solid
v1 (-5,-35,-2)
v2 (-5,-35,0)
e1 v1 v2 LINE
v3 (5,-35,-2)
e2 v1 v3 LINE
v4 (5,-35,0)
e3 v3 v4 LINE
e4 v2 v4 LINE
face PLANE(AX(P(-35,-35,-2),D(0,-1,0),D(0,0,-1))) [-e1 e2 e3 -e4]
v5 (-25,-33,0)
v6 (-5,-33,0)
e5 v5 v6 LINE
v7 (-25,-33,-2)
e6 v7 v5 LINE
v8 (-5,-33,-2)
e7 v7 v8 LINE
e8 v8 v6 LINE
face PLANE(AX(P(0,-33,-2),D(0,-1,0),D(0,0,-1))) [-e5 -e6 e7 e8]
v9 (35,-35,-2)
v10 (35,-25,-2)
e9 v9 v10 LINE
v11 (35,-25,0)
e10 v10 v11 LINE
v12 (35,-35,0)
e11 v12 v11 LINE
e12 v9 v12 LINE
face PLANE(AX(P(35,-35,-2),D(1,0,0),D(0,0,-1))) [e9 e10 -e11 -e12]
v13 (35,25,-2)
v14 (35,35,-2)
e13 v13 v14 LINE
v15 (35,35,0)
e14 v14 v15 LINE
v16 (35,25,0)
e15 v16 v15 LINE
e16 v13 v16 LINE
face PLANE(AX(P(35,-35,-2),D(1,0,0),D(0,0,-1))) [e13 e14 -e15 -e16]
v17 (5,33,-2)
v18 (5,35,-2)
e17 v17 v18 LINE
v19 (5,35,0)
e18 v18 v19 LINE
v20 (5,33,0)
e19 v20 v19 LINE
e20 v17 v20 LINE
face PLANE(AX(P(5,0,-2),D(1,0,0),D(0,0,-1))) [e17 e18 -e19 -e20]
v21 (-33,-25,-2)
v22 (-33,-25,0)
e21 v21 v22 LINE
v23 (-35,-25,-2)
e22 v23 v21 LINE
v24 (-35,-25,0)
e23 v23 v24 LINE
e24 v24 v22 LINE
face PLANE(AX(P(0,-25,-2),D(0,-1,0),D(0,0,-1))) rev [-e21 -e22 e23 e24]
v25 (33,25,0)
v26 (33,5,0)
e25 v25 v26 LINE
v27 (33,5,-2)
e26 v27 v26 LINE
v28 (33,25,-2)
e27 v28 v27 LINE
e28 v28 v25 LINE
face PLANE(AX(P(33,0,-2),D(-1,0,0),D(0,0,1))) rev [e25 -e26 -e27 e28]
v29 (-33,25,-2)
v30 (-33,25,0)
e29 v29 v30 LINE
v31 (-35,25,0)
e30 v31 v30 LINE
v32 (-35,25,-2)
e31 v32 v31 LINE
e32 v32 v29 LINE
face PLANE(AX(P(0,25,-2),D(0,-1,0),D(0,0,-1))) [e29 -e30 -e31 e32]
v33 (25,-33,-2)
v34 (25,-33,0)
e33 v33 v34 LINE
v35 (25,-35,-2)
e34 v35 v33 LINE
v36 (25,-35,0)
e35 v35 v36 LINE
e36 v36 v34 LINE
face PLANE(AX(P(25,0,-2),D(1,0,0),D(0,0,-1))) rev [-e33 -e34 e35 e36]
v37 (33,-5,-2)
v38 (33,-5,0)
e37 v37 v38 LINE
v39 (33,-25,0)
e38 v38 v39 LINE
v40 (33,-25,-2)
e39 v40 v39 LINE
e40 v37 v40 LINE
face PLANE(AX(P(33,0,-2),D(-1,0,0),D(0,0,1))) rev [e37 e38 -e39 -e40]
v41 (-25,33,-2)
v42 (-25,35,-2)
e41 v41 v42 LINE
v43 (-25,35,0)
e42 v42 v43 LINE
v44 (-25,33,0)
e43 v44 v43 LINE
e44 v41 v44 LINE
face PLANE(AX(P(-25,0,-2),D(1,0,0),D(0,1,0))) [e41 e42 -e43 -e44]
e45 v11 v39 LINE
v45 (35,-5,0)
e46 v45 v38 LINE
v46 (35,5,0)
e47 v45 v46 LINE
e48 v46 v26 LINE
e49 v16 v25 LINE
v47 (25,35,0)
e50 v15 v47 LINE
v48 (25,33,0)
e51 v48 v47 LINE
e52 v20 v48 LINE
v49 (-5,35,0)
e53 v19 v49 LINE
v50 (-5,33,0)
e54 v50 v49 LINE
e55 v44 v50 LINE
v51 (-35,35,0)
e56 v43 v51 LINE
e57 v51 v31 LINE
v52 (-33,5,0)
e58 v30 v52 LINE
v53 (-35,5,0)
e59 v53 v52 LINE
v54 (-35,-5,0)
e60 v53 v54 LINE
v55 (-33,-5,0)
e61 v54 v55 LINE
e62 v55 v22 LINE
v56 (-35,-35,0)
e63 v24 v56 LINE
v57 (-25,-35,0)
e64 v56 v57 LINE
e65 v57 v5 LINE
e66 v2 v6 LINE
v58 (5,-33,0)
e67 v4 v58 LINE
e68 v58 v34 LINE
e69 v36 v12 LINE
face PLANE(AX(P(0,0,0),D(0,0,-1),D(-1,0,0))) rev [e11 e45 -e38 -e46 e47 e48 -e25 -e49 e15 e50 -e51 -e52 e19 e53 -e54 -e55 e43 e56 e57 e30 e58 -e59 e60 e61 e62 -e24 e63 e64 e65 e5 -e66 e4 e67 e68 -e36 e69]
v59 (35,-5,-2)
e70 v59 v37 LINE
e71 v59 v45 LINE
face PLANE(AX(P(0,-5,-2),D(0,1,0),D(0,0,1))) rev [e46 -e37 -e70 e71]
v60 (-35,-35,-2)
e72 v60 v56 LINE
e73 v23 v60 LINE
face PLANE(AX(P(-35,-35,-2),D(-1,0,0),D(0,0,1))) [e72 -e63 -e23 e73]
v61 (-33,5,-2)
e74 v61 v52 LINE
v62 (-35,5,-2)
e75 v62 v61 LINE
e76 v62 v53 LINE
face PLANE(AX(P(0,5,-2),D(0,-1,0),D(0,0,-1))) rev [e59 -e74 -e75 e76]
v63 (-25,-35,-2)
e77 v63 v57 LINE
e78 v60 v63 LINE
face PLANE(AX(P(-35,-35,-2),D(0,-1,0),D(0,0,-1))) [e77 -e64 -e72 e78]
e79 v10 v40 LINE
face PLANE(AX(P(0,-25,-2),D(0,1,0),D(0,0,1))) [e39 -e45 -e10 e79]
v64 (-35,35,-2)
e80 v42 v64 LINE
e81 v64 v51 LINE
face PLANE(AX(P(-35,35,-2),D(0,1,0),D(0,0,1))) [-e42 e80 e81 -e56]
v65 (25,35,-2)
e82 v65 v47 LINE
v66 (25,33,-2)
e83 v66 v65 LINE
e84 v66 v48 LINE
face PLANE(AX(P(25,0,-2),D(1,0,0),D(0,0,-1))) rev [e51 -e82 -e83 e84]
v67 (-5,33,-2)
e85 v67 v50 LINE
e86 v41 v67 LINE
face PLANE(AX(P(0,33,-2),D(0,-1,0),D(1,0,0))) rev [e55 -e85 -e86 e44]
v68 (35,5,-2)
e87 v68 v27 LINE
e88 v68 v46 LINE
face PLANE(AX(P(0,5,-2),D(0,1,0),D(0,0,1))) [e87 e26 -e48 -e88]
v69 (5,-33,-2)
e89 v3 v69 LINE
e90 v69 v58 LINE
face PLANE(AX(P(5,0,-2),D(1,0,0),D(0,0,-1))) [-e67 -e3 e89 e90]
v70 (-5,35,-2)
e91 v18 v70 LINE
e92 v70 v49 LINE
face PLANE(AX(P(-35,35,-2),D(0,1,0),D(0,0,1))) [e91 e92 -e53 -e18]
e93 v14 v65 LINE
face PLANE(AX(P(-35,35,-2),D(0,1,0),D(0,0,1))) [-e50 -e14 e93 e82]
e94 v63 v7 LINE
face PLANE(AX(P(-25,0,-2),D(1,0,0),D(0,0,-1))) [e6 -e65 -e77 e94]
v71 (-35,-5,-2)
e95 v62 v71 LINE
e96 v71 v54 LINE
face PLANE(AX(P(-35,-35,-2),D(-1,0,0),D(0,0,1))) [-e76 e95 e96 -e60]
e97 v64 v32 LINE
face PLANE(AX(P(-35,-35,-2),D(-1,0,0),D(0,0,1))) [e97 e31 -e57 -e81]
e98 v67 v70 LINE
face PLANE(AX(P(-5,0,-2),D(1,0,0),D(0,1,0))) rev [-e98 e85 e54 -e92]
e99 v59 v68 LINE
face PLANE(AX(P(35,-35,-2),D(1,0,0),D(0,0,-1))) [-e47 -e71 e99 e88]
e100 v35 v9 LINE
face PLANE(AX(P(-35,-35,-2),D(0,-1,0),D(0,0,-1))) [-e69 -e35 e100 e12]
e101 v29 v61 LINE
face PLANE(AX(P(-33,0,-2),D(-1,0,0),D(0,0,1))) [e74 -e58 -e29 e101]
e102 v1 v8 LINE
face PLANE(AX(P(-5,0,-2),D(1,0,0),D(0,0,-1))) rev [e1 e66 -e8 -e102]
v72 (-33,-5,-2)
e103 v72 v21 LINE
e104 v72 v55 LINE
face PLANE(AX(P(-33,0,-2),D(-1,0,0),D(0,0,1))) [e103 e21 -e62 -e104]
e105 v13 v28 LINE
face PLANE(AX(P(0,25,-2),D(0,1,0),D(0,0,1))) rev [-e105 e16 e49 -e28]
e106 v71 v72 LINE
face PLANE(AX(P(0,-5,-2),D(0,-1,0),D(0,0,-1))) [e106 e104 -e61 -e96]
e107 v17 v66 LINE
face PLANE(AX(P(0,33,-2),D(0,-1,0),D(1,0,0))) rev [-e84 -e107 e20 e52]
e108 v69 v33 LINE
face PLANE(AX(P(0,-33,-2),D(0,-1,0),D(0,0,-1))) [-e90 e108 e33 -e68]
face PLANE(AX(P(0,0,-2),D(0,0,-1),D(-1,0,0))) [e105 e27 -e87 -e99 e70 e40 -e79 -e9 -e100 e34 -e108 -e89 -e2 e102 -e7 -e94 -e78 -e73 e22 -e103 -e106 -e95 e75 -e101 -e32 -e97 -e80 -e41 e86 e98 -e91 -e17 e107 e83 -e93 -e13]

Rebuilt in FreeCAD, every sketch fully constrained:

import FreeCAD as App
import Part
import Sketcher

V = App.Vector

doc = App.newDocument("Part")
params = doc.addObject("Spreadsheet::Sheet", "Params")
for row, (alias, value) in enumerate([
    ("sketch1_width", "70 mm"),
    ("pad1_length", "2 mm"),
    ("sketch2_width", "2 mm"),
    ("sketch2_width2", "20 mm"),
    ("pocket1_length", "2 mm"),
], start=1):
    params.set(f"A{row}", alias)
    params.set(f"B{row}", "=" + value)
    params.setAlias(f"B{row}", alias)

body = doc.addObject("PartDesign::Body", "Body")

# Sketch on XY plane
sketch1 = doc.addObject("Sketcher::SketchObject", "Sketch")
body.addObject(sketch1)
sketch1.AttachmentSupport = (doc.XY_Plane, [""])
sketch1.MapMode = "FlatFace"
sketch1.addGeometry([
    Part.LineSegment(V(-35, 35, 0), V(-35, -35, 0)),
    Part.LineSegment(V(-35, -35, 0), V(35, -35, 0)),
    Part.LineSegment(V(35, -35, 0), V(35, 35, 0)),
    Part.LineSegment(V(35, 35, 0), V(-35, 35, 0)),
], False)
sketch1.addConstraint([
    Sketcher.Constraint("Coincident", 0, 2, 1, 1),
    Sketcher.Constraint("Coincident", 1, 2, 2, 1),
    Sketcher.Constraint("Coincident", 2, 2, 3, 1),
    Sketcher.Constraint("Coincident", 3, 2, 0, 1),
    Sketcher.Constraint("Vertical", 0),
    Sketcher.Constraint("Horizontal", 1),
    Sketcher.Constraint("Vertical", 2),
    Sketcher.Constraint("Horizontal", 3),
    Sketcher.Constraint("Symmetric", 0, 2, 2, 2, -1, 1),
    Sketcher.Constraint("Equal", 3, 0),
    Sketcher.Constraint("DistanceX", 1, 1, 1, 2, 70.0),
])
sketch1.setExpression("Constraints[10]", "Params.sketch1_width")
pad1 = doc.addObject("PartDesign::Pad", "Pad")
body.addObject(pad1)
pad1.Profile = sketch1
pad1.setExpression("Length", "Params.pad1_length")
pad1.Reversed = True

# Sketch on XY plane
sketch2 = doc.addObject("Sketcher::SketchObject", "Sketch001")
body.addObject(sketch2)
sketch2.AttachmentSupport = (doc.XY_Plane, [""])
sketch2.MapMode = "FlatFace"
sketch2.addGeometry([
    Part.LineSegment(V(-35, 25, 0), V(-35, 5, 0)),  # 0
    Part.LineSegment(V(-35, 5, 0), V(-33, 5, 0)),  # 1
    Part.LineSegment(V(-33, 5, 0), V(-33, 25, 0)),  # 2
    Part.LineSegment(V(-33, 25, 0), V(-35, 25, 0)),  # 3
    Part.LineSegment(V(-35, -5, 0), V(-35, -25, 0)),  # 4
    Part.LineSegment(V(-35, -25, 0), V(-33, -25, 0)),  # 5
    Part.LineSegment(V(-33, -25, 0), V(-33, -5, 0)),  # 6
    Part.LineSegment(V(-33, -5, 0), V(-35, -5, 0)),  # 7
    Part.LineSegment(V(-25, -33, 0), V(-25, -35, 0)),  # 8
    Part.LineSegment(V(-25, -35, 0), V(-5, -35, 0)),  # 9
    Part.LineSegment(V(-5, -35, 0), V(-5, -33, 0)),  # 10
    Part.LineSegment(V(-5, -33, 0), V(-25, -33, 0)),  # 11
    Part.LineSegment(V(5, -33, 0), V(5, -35, 0)),  # 12
    Part.LineSegment(V(5, -35, 0), V(25, -35, 0)),  # 13
    Part.LineSegment(V(25, -35, 0), V(25, -33, 0)),  # 14
    Part.LineSegment(V(25, -33, 0), V(5, -33, 0)),  # 15
    Part.LineSegment(V(33, -5, 0), V(33, -25, 0)),  # 16
    Part.LineSegment(V(33, -25, 0), V(35, -25, 0)),  # 17
    Part.LineSegment(V(35, -25, 0), V(35, -5, 0)),  # 18
    Part.LineSegment(V(35, -5, 0), V(33, -5, 0)),  # 19
    Part.LineSegment(V(33, 25, 0), V(33, 5, 0)),  # 20
    Part.LineSegment(V(33, 5, 0), V(35, 5, 0)),  # 21
    Part.LineSegment(V(35, 5, 0), V(35, 25, 0)),  # 22
    Part.LineSegment(V(35, 25, 0), V(33, 25, 0)),  # 23
    Part.LineSegment(V(5, 35, 0), V(5, 33, 0)),  # 24
    Part.LineSegment(V(5, 33, 0), V(25, 33, 0)),  # 25
    Part.LineSegment(V(25, 33, 0), V(25, 35, 0)),  # 26
    Part.LineSegment(V(25, 35, 0), V(5, 35, 0)),  # 27
    Part.LineSegment(V(-25, 35, 0), V(-25, 33, 0)),  # 28
    Part.LineSegment(V(-25, 33, 0), V(-5, 33, 0)),  # 29
    Part.LineSegment(V(-5, 33, 0), V(-5, 35, 0)),  # 30
    Part.LineSegment(V(-5, 35, 0), V(-25, 35, 0)),  # 31
], False)
sketch2.addConstraint([
    Sketcher.Constraint("Coincident", 0, 2, 1, 1),
    Sketcher.Constraint("Coincident", 1, 2, 2, 1),
    Sketcher.Constraint("Coincident", 2, 2, 3, 1),
    Sketcher.Constraint("Coincident", 3, 2, 0, 1),
    Sketcher.Constraint("Coincident", 4, 2, 5, 1),
    Sketcher.Constraint("Coincident", 5, 2, 6, 1),
    Sketcher.Constraint("Coincident", 6, 2, 7, 1),
    Sketcher.Constraint("Coincident", 7, 2, 4, 1),
    Sketcher.Constraint("Coincident", 8, 2, 9, 1),
    Sketcher.Constraint("Coincident", 9, 2, 10, 1),
    Sketcher.Constraint("Coincident", 10, 2, 11, 1),
    Sketcher.Constraint("Coincident", 11, 2, 8, 1),
    Sketcher.Constraint("Coincident", 12, 2, 13, 1),
    Sketcher.Constraint("Coincident", 13, 2, 14, 1),
    Sketcher.Constraint("Coincident", 14, 2, 15, 1),
    Sketcher.Constraint("Coincident", 15, 2, 12, 1),
    Sketcher.Constraint("Coincident", 16, 2, 17, 1),
    Sketcher.Constraint("Coincident", 17, 2, 18, 1),
    Sketcher.Constraint("Coincident", 18, 2, 19, 1),
    Sketcher.Constraint("Coincident", 19, 2, 16, 1),
    Sketcher.Constraint("Coincident", 20, 2, 21, 1),
    Sketcher.Constraint("Coincident", 21, 2, 22, 1),
    Sketcher.Constraint("Coincident", 22, 2, 23, 1),
    Sketcher.Constraint("Coincident", 23, 2, 20, 1),
    Sketcher.Constraint("Coincident", 24, 2, 25, 1),
    Sketcher.Constraint("Coincident", 25, 2, 26, 1),
    Sketcher.Constraint("Coincident", 26, 2, 27, 1),
    Sketcher.Constraint("Coincident", 27, 2, 24, 1),
    Sketcher.Constraint("Coincident", 28, 2, 29, 1),
    Sketcher.Constraint("Coincident", 29, 2, 30, 1),
    Sketcher.Constraint("Coincident", 30, 2, 31, 1),
    Sketcher.Constraint("Coincident", 31, 2, 28, 1),
    Sketcher.Constraint("Vertical", 0),
    Sketcher.Constraint("Horizontal", 1),
    Sketcher.Constraint("Vertical", 2),
    Sketcher.Constraint("Horizontal", 3),
    Sketcher.Constraint("Vertical", 4),
    Sketcher.Constraint("Horizontal", 5),
    Sketcher.Constraint("Vertical", 6),
    Sketcher.Constraint("Horizontal", 7),
    Sketcher.Constraint("Vertical", 8),
    Sketcher.Constraint("Horizontal", 9),
    Sketcher.Constraint("Vertical", 10),
    Sketcher.Constraint("Horizontal", 11),
    Sketcher.Constraint("Vertical", 12),
    Sketcher.Constraint("Horizontal", 13),
    Sketcher.Constraint("Vertical", 14),
    Sketcher.Constraint("Horizontal", 15),
    Sketcher.Constraint("Vertical", 16),
    Sketcher.Constraint("Horizontal", 17),
    Sketcher.Constraint("Vertical", 18),
    Sketcher.Constraint("Horizontal", 19),
    Sketcher.Constraint("Vertical", 20),
    Sketcher.Constraint("Horizontal", 21),
    Sketcher.Constraint("Vertical", 22),
    Sketcher.Constraint("Horizontal", 23),
    Sketcher.Constraint("Vertical", 24),
    Sketcher.Constraint("Horizontal", 25),
    Sketcher.Constraint("Vertical", 26),
    Sketcher.Constraint("Horizontal", 27),
    Sketcher.Constraint("Vertical", 28),
    Sketcher.Constraint("Horizontal", 29),
    Sketcher.Constraint("Vertical", 30),
    Sketcher.Constraint("Horizontal", 31),
    Sketcher.Constraint("Symmetric", 2, 2, 16, 2, -1, 1),
    Sketcher.Constraint("Symmetric", 0, 2, 18, 2, -1, 1),
    Sketcher.Constraint("Symmetric", 6, 2, 20, 2, -1, 1),
    Sketcher.Constraint("Symmetric", 4, 2, 22, 2, -1, 1),
    Sketcher.Constraint("Symmetric", 10, 2, 24, 2, -1, 1),
    Sketcher.Constraint("Symmetric", 8, 2, 26, 2, -1, 1),
    Sketcher.Constraint("Symmetric", 14, 2, 28, 2, -1, 1),
    Sketcher.Constraint("Symmetric", 12, 2, 30, 2, -1, 1),
    Sketcher.Constraint("Symmetric", 9, 2, 12, 2, -2),
    Sketcher.Constraint("Symmetric", 11, 2, 14, 2, -2),
    Sketcher.Constraint("Symmetric", 5, 2, 16, 2, -2),
    Sketcher.Constraint("Symmetric", 7, 2, 18, 2, -2),
    Sketcher.Constraint("Equal", 31, 0),
    Sketcher.Constraint("Equal", 23, 8),
    Sketcher.Constraint("DistanceX", 1, 1, 1, 2, 2.0),
    Sketcher.Constraint("DistanceX", 9, 1, 9, 2, 20.0),
    Sketcher.Constraint("DistanceX", 0, 2, -1, 1, 35.0),
    Sketcher.Constraint("DistanceY", -1, 1, 0, 2, 5.0),
    Sketcher.Constraint("DistanceX", 8, 2, -1, 1, 25.0),
    Sketcher.Constraint("DistanceY", 8, 2, -1, 1, 35.0),
])
sketch2.setExpression("Constraints[78]", "Params.sketch2_width")
sketch2.setExpression("Constraints[79]", "Params.sketch2_width2")
pocket1 = doc.addObject("PartDesign::Pocket", "Pocket")
body.addObject(pocket1)
pocket1.Profile = sketch2
pocket1.setExpression("Length", "Params.pocket1_length")

doc.recompute()
